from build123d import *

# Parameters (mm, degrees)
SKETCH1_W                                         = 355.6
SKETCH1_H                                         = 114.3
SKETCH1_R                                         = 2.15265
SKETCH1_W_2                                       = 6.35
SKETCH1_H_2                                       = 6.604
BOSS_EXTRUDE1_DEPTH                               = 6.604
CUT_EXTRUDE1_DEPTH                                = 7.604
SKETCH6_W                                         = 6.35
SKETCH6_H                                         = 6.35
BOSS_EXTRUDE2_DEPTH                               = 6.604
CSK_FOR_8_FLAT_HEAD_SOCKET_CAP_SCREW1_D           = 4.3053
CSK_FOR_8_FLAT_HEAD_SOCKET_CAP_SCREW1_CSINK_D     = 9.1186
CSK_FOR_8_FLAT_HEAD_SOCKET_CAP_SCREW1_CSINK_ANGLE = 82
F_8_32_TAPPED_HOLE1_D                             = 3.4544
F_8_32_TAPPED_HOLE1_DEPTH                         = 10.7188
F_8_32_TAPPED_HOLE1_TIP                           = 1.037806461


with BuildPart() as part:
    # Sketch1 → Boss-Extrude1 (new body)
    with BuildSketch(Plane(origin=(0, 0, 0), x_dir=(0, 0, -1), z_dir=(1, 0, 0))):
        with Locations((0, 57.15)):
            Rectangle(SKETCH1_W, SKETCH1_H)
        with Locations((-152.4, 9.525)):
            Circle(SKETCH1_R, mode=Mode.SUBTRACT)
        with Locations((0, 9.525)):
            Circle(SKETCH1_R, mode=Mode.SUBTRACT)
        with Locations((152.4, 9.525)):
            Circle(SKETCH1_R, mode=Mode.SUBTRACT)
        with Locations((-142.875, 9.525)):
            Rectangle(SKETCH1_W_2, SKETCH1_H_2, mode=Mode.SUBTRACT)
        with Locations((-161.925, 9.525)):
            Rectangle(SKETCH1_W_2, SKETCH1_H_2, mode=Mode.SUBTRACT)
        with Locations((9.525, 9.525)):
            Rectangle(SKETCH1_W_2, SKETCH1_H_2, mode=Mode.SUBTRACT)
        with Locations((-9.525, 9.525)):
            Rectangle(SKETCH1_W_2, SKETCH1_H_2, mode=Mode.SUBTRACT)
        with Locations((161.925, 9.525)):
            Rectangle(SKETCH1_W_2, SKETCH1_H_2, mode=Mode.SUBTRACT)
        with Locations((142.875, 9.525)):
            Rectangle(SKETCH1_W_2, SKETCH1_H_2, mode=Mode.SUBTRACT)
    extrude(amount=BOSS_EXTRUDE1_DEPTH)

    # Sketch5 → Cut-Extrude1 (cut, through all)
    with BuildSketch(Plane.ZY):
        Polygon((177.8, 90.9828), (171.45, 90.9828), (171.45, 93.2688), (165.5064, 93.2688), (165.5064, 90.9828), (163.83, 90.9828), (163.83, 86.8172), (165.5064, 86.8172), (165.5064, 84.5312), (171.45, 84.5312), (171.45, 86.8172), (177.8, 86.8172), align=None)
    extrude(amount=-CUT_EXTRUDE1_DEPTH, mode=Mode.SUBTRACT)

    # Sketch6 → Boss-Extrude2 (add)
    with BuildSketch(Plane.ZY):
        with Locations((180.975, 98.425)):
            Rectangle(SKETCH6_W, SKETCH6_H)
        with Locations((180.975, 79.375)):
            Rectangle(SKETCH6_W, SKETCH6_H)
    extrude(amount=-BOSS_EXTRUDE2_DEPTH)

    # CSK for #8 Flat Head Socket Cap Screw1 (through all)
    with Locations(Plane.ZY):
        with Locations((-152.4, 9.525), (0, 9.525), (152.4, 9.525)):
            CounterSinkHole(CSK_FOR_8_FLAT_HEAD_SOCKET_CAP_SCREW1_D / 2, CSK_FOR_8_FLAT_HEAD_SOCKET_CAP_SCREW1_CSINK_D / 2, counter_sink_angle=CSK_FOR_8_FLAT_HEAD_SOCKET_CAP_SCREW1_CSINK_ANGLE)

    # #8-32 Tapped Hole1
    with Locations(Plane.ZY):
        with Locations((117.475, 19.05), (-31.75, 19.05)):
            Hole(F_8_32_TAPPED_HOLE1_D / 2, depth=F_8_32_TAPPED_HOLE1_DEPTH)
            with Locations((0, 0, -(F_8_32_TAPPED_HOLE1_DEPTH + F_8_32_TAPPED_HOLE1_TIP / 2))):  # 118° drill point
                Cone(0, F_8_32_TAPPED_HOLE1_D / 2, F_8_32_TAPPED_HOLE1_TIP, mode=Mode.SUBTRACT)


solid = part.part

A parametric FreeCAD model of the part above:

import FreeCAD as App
import Part
import Sketcher
Q = App.Units.Quantity

doc = App.newDocument("Part")
body = doc.addObject("PartDesign::Body", "Body")

# Sketch on YZ plane
sketch1 = body.newObject("Sketcher::SketchObject", "Sketch")
sketch1.AttachmentSupport = (doc.getObject("YZ_Plane"), [""])
sketch1.MapMode = "FlatFace"
sketch1.addGeometry(Part.LineSegment(App.Vector(114.3, 177.8, 0), App.Vector(0, 177.8, 0)), False)
sketch1.addGeometry(Part.LineSegment(App.Vector(0, 177.8, 0), App.Vector(0, -177.8, 0)), False)
sketch1.addGeometry(Part.LineSegment(App.Vector(0, -177.8, 0), App.Vector(114.3, -177.8, 0)), False)
sketch1.addGeometry(Part.LineSegment(App.Vector(114.3, -177.8, 0), App.Vector(114.3, 177.8, 0)), False)
sketch1.addGeometry(Part.LineSegment(App.Vector(6.2, 158.8, 0), App.Vector(6.2, 165.1, 0)), False)
sketch1.addGeometry(Part.LineSegment(App.Vector(6.2, 165.1, 0), App.Vector(12.8, 165.1, 0)), False)
sketch1.addGeometry(Part.LineSegment(App.Vector(12.8, 165.1, 0), App.Vector(12.8, 158.8, 0)), False)
sketch1.addGeometry(Part.LineSegment(App.Vector(12.8, 158.8, 0), App.Vector(6.2, 158.8, 0)), False)
sketch1.addGeometry(Part.Circle(App.Vector(9.5, 152.4, 0), App.Vector(0, 0, 1), 2.2), False)
sketch1.addGeometry(Part.LineSegment(App.Vector(6.2, 139.7, 0), App.Vector(6.2, 146.1, 0)), False)
sketch1.addGeometry(Part.LineSegment(App.Vector(6.2, 146.1, 0), App.Vector(12.8, 146.1, 0)), False)
sketch1.addGeometry(Part.LineSegment(App.Vector(12.8, 146.1, 0), App.Vector(12.8, 139.7, 0)), False)
sketch1.addGeometry(Part.LineSegment(App.Vector(12.8, 139.7, 0), App.Vector(6.2, 139.7, 0)), False)
sketch1.addGeometry(Part.LineSegment(App.Vector(6.2, 6.3, 0), App.Vector(6.2, 12.7, 0)), False)
sketch1.addGeometry(Part.LineSegment(App.Vector(6.2, 12.7, 0), App.Vector(12.8, 12.7, 0)), False)
sketch1.addGeometry(Part.LineSegment(App.Vector(12.8, 12.7, 0), App.Vector(12.8, 6.3, 0)), False)
sketch1.addGeometry(Part.LineSegment(App.Vector(12.8, 6.3, 0), App.Vector(6.2, 6.3, 0)), False)
sketch1.addGeometry(Part.Circle(App.Vector(9.5, 0, 0), App.Vector(0, 0, 1), 2.2), False)
sketch1.addGeometry(Part.LineSegment(App.Vector(6.2, -12.7, 0), App.Vector(6.2, -6.3, 0)), False)
sketch1.addGeometry(Part.LineSegment(App.Vector(6.2, -6.3, 0), App.Vector(12.8, -6.3, 0)), False)
sketch1.addGeometry(Part.LineSegment(App.Vector(12.8, -6.3, 0), App.Vector(12.8, -12.7, 0)), False)
sketch1.addGeometry(Part.LineSegment(App.Vector(12.8, -12.7, 0), App.Vector(6.2, -12.7, 0)), False)
sketch1.addGeometry(Part.LineSegment(App.Vector(6.2, -146.1, 0), App.Vector(6.2, -139.7, 0)), False)
sketch1.addGeometry(Part.LineSegment(App.Vector(6.2, -139.7, 0), App.Vector(12.8, -139.7, 0)), False)
sketch1.addGeometry(Part.LineSegment(App.Vector(12.8, -139.7, 0), App.Vector(12.8, -146.1, 0)), False)
sketch1.addGeometry(Part.LineSegment(App.Vector(12.8, -146.1, 0), App.Vector(6.2, -146.1, 0)), False)
sketch1.addGeometry(Part.Circle(App.Vector(9.5, -152.4, 0), App.Vector(0, 0, 1), 2.2), False)
sketch1.addGeometry(Part.LineSegment(App.Vector(6.2, -165.1, 0), App.Vector(6.2, -158.8, 0)), False)
sketch1.addGeometry(Part.LineSegment(App.Vector(6.2, -158.8, 0), App.Vector(12.8, -158.8, 0)), False)
sketch1.addGeometry(Part.LineSegment(App.Vector(12.8, -158.8, 0), App.Vector(12.8, -165.1, 0)), False)
sketch1.addGeometry(Part.LineSegment(App.Vector(12.8, -165.1, 0), App.Vector(6.2, -165.1, 0)), False)
sketch1.addConstraint(Sketcher.Constraint("Coincident", 0, 2, 1, 1))
sketch1.addConstraint(Sketcher.Constraint("Coincident", 1, 2, 2, 1))
sketch1.addConstraint(Sketcher.Constraint("Coincident", 2, 2, 3, 1))
sketch1.addConstraint(Sketcher.Constraint("Coincident", 3, 2, 0, 1))
sketch1.addConstraint(Sketcher.Constraint("Coincident", 4, 2, 5, 1))
sketch1.addConstraint(Sketcher.Constraint("Coincident", 5, 2, 6, 1))
sketch1.addConstraint(Sketcher.Constraint("Coincident", 6, 2, 7, 1))
sketch1.addConstraint(Sketcher.Constraint("Coincident", 7, 2, 4, 1))
sketch1.addConstraint(Sketcher.Constraint("Coincident", 9, 2, 10, 1))
sketch1.addConstraint(Sketcher.Constraint("Coincident", 10, 2, 11, 1))
sketch1.addConstraint(Sketcher.Constraint("Coincident", 11, 2, 12, 1))
sketch1.addConstraint(Sketcher.Constraint("Coincident", 12, 2, 9, 1))
sketch1.addConstraint(Sketcher.Constraint("Coincident", 13, 2, 14, 1))
sketch1.addConstraint(Sketcher.Constraint("Coincident", 14, 2, 15, 1))
sketch1.addConstraint(Sketcher.Constraint("Coincident", 15, 2, 16, 1))
sketch1.addConstraint(Sketcher.Constraint("Coincident", 16, 2, 13, 1))
sketch1.addConstraint(Sketcher.Constraint("Coincident", 18, 2, 19, 1))
sketch1.addConstraint(Sketcher.Constraint("Coincident", 19, 2, 20, 1))
sketch1.addConstraint(Sketcher.Constraint("Coincident", 20, 2, 21, 1))
sketch1.addConstraint(Sketcher.Constraint("Coincident", 21, 2, 18, 1))
sketch1.addConstraint(Sketcher.Constraint("Coincident", 22, 2, 23, 1))
sketch1.addConstraint(Sketcher.Constraint("Coincident", 23, 2, 24, 1))
sketch1.addConstraint(Sketcher.Constraint("Coincident", 24, 2, 25, 1))
sketch1.addConstraint(Sketcher.Constraint("Coincident", 25, 2, 22, 1))
sketch1.addConstraint(Sketcher.Constraint("Coincident", 27, 2, 28, 1))
sketch1.addConstraint(Sketcher.Constraint("Coincident", 28, 2, 29, 1))
sketch1.addConstraint(Sketcher.Constraint("Coincident", 29, 2, 30, 1))
sketch1.addConstraint(Sketcher.Constraint("Coincident", 30, 2, 27, 1))
sketch1.addConstraint(Sketcher.Constraint("Horizontal", 0))
sketch1.addConstraint(Sketcher.Constraint("Vertical", 1))
sketch1.addConstraint(Sketcher.Constraint("Horizontal", 2))
sketch1.addConstraint(Sketcher.Constraint("Vertical", 3))
sketch1.addConstraint(Sketcher.Constraint("Vertical", 4))
sketch1.addConstraint(Sketcher.Constraint("Horizontal", 5))
sketch1.addConstraint(Sketcher.Constraint("Vertical", 6))
sketch1.addConstraint(Sketcher.Constraint("Horizontal", 7))
sketch1.addConstraint(Sketcher.Constraint("Vertical", 9))
sketch1.addConstraint(Sketcher.Constraint("Horizontal", 10))
sketch1.addConstraint(Sketcher.Constraint("Vertical", 11))
sketch1.addConstraint(Sketcher.Constraint("Horizontal", 12))
sketch1.addConstraint(Sketcher.Constraint("Vertical", 13))
sketch1.addConstraint(Sketcher.Constraint("Horizontal", 14))
sketch1.addConstraint(Sketcher.Constraint("Vertical", 15))
sketch1.addConstraint(Sketcher.Constraint("Horizontal", 16))
sketch1.addConstraint(Sketcher.Constraint("Vertical", 18))
sketch1.addConstraint(Sketcher.Constraint("Horizontal", 19))
sketch1.addConstraint(Sketcher.Constraint("Vertical", 20))
sketch1.addConstraint(Sketcher.Constraint("Horizontal", 21))
sketch1.addConstraint(Sketcher.Constraint("Vertical", 22))
sketch1.addConstraint(Sketcher.Constraint("Horizontal", 23))
sketch1.addConstraint(Sketcher.Constraint("Vertical", 24))
sketch1.addConstraint(Sketcher.Constraint("Horizontal", 25))
sketch1.addConstraint(Sketcher.Constraint("Vertical", 27))
sketch1.addConstraint(Sketcher.Constraint("Horizontal", 28))
sketch1.addConstraint(Sketcher.Constraint("Vertical", 29))
sketch1.addConstraint(Sketcher.Constraint("Horizontal", 30))
sketch1.addConstraint(Sketcher.Constraint("Equal", 8, 17))
sketch1.addConstraint(Sketcher.Constraint("Equal", 17, 26))
sketch1.addConstraint(Sketcher.Constraint("Symmetric", 0, 2, 1, 2, -1, 1))
sketch1.addConstraint(Sketcher.Constraint("Symmetric", 8, 3, 26, 3, -1))
sketch1.addConstraint(Sketcher.Constraint("Symmetric", 16, 2, 18, 2, -1))
sketch1.addConstraint(Sketcher.Constraint("Symmetric", 14, 2, 20, 2, -1))
sketch1.addConstraint(Sketcher.Constraint("Symmetric", 12, 2, 22, 2, -1))
sketch1.addConstraint(Sketcher.Constraint("Symmetric", 10, 2, 24, 2, -1))
sketch1.addConstraint(Sketcher.Constraint("Symmetric", 7, 2, 27, 2, -1))
sketch1.addConstraint(Sketcher.Constraint("Symmetric", 5, 2, 29, 2, -1))
sketch1.addConstraint(Sketcher.Constraint("PointOnObject", 17, 3, -1))
sketch1.addConstraint(Sketcher.Constraint("Vertical", 8, 3, 17, 3))
sketch1.addConstraint(Sketcher.Constraint("Vertical", 7, 2, 9, 2))
sketch1.addConstraint(Sketcher.Constraint("Vertical", 6, 2, 10, 2))
sketch1.addConstraint(Sketcher.Constraint("Vertical", 12, 2, 13, 2))
sketch1.addConstraint(Sketcher.Constraint("Vertical", 11, 2, 14, 2))
sketch1.addConstraint(Sketcher.Constraint("Equal", 6, 9))
sketch1.addConstraint(Sketcher.Constraint("Equal", 11, 13))
sketch1.addConstraint(Sketcher.Constraint("DistanceY", 1, 2, 1, 1, Q("14 in")))
sketch1.addConstraint(Sketcher.Constraint("DistanceX", 0, 2, 0, 1, Q("4.5 in")))
sketch1.addConstraint(Sketcher.Constraint("DistanceY", -1, 1, 8, 3, Q("6 in")))
sketch1.addConstraint(Sketcher.Constraint("DistanceY", 13, 2, 12, 2, Q("5 in")))
sketch1.addConstraint(Sketcher.Constraint("Diameter", 8, Q("0.1695 in")))
sketch1.addConstraint(Sketcher.Constraint("DistanceX", 5, 1, 5, 2, Q("0.26 in")))
sketch1.addConstraint(Sketcher.Constraint("DistanceY", 4, 1, 4, 2, Q("0.25 in")))
sketch1.addConstraint(Sketcher.Constraint("DistanceY", -1, 1, 4, 2, Q("6.5 in")))
sketch1.addConstraint(Sketcher.Constraint("DistanceY", -1, 1, 11, 2, Q("5.5 in")))
sketch1.addConstraint(Sketcher.Constraint("DistanceX", 4, 2, 8, 3, Q("0.13 in")))
sketch1.addConstraint(Sketcher.Constraint("DistanceX", -1, 1, 8, 3, Q("0.375 in")))
pad1 = body.newObject("PartDesign::Pad", "Pad")
pad1.Profile = sketch1
pad1.Length = Q("0.26 in")

# Sketch on YZ plane
sketch2 = body.newObject("Sketcher::SketchObject", "Sketch001")
sketch2.AttachmentSupport = (doc.getObject("YZ_Plane"), [""])
sketch2.MapMode = "FlatFace"
sketch2.addGeometry(Part.LineSegment(App.Vector(91, 177.8, 0), App.Vector(91, 171.4, 0)), False)
sketch2.addGeometry(Part.LineSegment(App.Vector(91, 171.4, 0), App.Vector(93.3, 171.4, 0)), False)
sketch2.addGeometry(Part.LineSegment(App.Vector(93.3, 171.4, 0), App.Vector(93.3, 165.5, 0)), False)
sketch2.addGeometry(Part.LineSegment(App.Vector(93.3, 165.5, 0), App.Vector(91, 165.5, 0)), False)
sketch2.addGeometry(Part.LineSegment(App.Vector(91, 165.5, 0), App.Vector(91, 163.8, 0)), False)
sketch2.addGeometry(Part.LineSegment(App.Vector(91, 163.8, 0), App.Vector(86.8, 163.8, 0)), False)
sketch2.addGeometry(Part.LineSegment(App.Vector(86.8, 163.8, 0), App.Vector(86.8, 165.5, 0)), False)
sketch2.addGeometry(Part.LineSegment(App.Vector(86.8, 165.5, 0), App.Vector(84.5, 165.5, 0)), False)
sketch2.addGeometry(Part.LineSegment(App.Vector(84.5, 165.5, 0), App.Vector(84.5, 171.4, 0)), False)
sketch2.addGeometry(Part.LineSegment(App.Vector(84.5, 171.4, 0), App.Vector(86.8, 171.4, 0)), False)
sketch2.addGeometry(Part.LineSegment(App.Vector(86.8, 171.4, 0), App.Vector(86.8, 177.8, 0)), False)
sketch2.addGeometry(Part.LineSegment(App.Vector(86.8, 177.8, 0), App.Vector(91, 177.8, 0)), False)
sketch2.addConstraint(Sketcher.Constraint("Coincident", 0, 2, 1, 1))
sketch2.addConstraint(Sketcher.Constraint("Coincident", 1, 2, 2, 1))
sketch2.addConstraint(Sketcher.Constraint("Coincident", 2, 2, 3, 1))
sketch2.addConstraint(Sketcher.Constraint("Coincident", 3, 2, 4, 1))
sketch2.addConstraint(Sketcher.Constraint("Coincident", 4, 2, 5, 1))
sketch2.addConstraint(Sketcher.Constraint("Coincident", 5, 2, 6, 1))
sketch2.addConstraint(Sketcher.Constraint("Coincident", 6, 2, 7, 1))
sketch2.addConstraint(Sketcher.Constraint("Coincident", 7, 2, 8, 1))
sketch2.addConstraint(Sketcher.Constraint("Coincident", 8, 2, 9, 1))
sketch2.addConstraint(Sketcher.Constraint("Coincident", 9, 2, 10, 1))
sketch2.addConstraint(Sketcher.Constraint("Coincident", 10, 2, 11, 1))
sketch2.addConstraint(Sketcher.Constraint("Coincident", 11, 2, 0, 1))
sketch2.addConstraint(Sketcher.Constraint("Vertical", 0))
sketch2.addConstraint(Sketcher.Constraint("Horizontal", 1))
sketch2.addConstraint(Sketcher.Constraint("Vertical", 2))
sketch2.addConstraint(Sketcher.Constraint("Horizontal", 3))
sketch2.addConstraint(Sketcher.Constraint("Vertical", 4))
sketch2.addConstraint(Sketcher.Constraint("Horizontal", 5))
sketch2.addConstraint(Sketcher.Constraint("Vertical", 6))
sketch2.addConstraint(Sketcher.Constraint("Horizontal", 7))
sketch2.addConstraint(Sketcher.Constraint("Vertical", 8))
sketch2.addConstraint(Sketcher.Constraint("Horizontal", 9))
sketch2.addConstraint(Sketcher.Constraint("Vertical", 10))
sketch2.addConstraint(Sketcher.Constraint("Horizontal", 11))
sketch2.addConstraint(Sketcher.Constraint("Horizontal", 3, 2, 6, 2))
sketch2.addConstraint(Sketcher.Constraint("Horizontal", 1, 2, 8, 2))
sketch2.addConstraint(Sketcher.Constraint("Vertical", 0, 2, 3, 2))
sketch2.addConstraint(Sketcher.Constraint("Vertical", 6, 2, 9, 2))
sketch2.addConstraint(Sketcher.Constraint("Equal", 3, 7))
sketch2.addConstraint(Sketcher.Constraint("DistanceY", -1, 1, 10, 2, Q("7 in")))
sketch2.addConstraint(Sketcher.Constraint("DistanceX", 1, 1, 1, 2, Q("0.09 in")))
sketch2.addConstraint(Sketcher.Constraint("DistanceY", 0, 2, 0, 1, Q("0.25 in")))
sketch2.addConstraint(Sketcher.Constraint("DistanceY", 4, 2, 0, 2, Q("0.3 in")))
sketch2.addConstraint(Sketcher.Constraint("DistanceX", 5, 2, 5, 1, Q("0.164 in")))
sketch2.addConstraint(Sketcher.Constraint("DistanceY", 2, 2, 2, 1, Q("0.234 in")))
sketch2.addConstraint(Sketcher.Constraint("DistanceX", -1, 1, 0, 2, Q("3.582 in")))
pocket1 = body.newObject("PartDesign::Pocket", "Pocket")
pocket1.Profile = sketch2
pocket1.Type = "ThroughAll"
pocket1.Reversed = True

# Sketch on YZ plane
sketch3 = body.newObject("Sketcher::SketchObject", "Sketch002")
sketch3.AttachmentSupport = (doc.getObject("YZ_Plane"), [""])
sketch3.MapMode = "FlatFace"
sketch3.addGeometry(Part.LineSegment(App.Vector(102, 178, 0), App.Vector(95, 178, 0)), False)
sketch3.addGeometry(Part.LineSegment(App.Vector(95, 178, 0), App.Vector(95, 184, 0)), False)
sketch3.addGeometry(Part.LineSegment(App.Vector(95, 184, 0), App.Vector(102, 184, 0)), False)
sketch3.addGeometry(Part.LineSegment(App.Vector(102, 184, 0), App.Vector(102, 178, 0)), False)
sketch3.addGeometry(Part.LineSegment(App.Vector(83, 178, 0), App.Vector(76, 178, 0)), False)
sketch3.addGeometry(Part.LineSegment(App.Vector(76, 178, 0), App.Vector(76, 184, 0)), False)
sketch3.addGeometry(Part.LineSegment(App.Vector(76, 184, 0), App.Vector(83, 184, 0)), False)
sketch3.addGeometry(Part.LineSegment(App.Vector(83, 184, 0), App.Vector(83, 178, 0)), False)
sketch3.addConstraint(Sketcher.Constraint("Coincident", 0, 2, 1, 1))
sketch3.addConstraint(Sketcher.Constraint("Coincident", 1, 2, 2, 1))
sketch3.addConstraint(Sketcher.Constraint("Coincident", 2, 2, 3, 1))
sketch3.addConstraint(Sketcher.Constraint("Coincident", 3, 2, 0, 1))
sketch3.addConstraint(Sketcher.Constraint("Coincident", 4, 2, 5, 1))
sketch3.addConstraint(Sketcher.Constraint("Coincident", 5, 2, 6, 1))
sketch3.addConstraint(Sketcher.Constraint("Coincident", 6, 2, 7, 1))
sketch3.addConstraint(Sketcher.Constraint("Coincident", 7, 2, 4, 1))
sketch3.addConstraint(Sketcher.Constraint("Horizontal", 0))
sketch3.addConstraint(Sketcher.Constraint("Vertical", 1))
sketch3.addConstraint(Sketcher.Constraint("Horizontal", 2))
sketch3.addConstraint(Sketcher.Constraint("Vertical", 3))
sketch3.addConstraint(Sketcher.Constraint("Horizontal", 4))
sketch3.addConstraint(Sketcher.Constraint("Vertical", 5))
sketch3.addConstraint(Sketcher.Constraint("Horizontal", 6))
sketch3.addConstraint(Sketcher.Constraint("Vertical", 7))
sketch3.addConstraint(Sketcher.Constraint("Horizontal", 3, 2, 4, 2))
sketch3.addConstraint(Sketcher.Constraint("Horizontal", 2, 2, 5, 2))
sketch3.addConstraint(Sketcher.Constraint("Equal", 2, 4))
sketch3.addConstraint(Sketcher.Constraint("Equal", 6, 1))
sketch3.addConstraint(Sketcher.Constraint("DistanceY", -1, 1, 0, 2, Q("7 in")))
sketch3.addConstraint(Sketcher.Constraint("DistanceX", -1, 1, 2, 2, Q("4 in")))
sketch3.addConstraint(Sketcher.Constraint("DistanceX", -1, 1, 4, 2, Q("3 in")))
sketch3.addConstraint(Sketcher.Constraint("DistanceX", 0, 2, 0, 1, Q("0.25 in")))
pad2 = body.newObject("PartDesign::Pad", "Pad001")
pad2.Profile = sketch3
pad2.Length = Q("0.26 in")

# Sketch on YZ plane
sketch4 = body.newObject("Sketcher::SketchObject", "Sketch003")
sketch4.AttachmentSupport = (doc.getObject("YZ_Plane"), [""])
sketch4.MapMode = "FlatFace"
sketch4.addGeometry(Part.Circle(App.Vector(9.5, -152.4, 0), App.Vector(0, 0, 1), 2.2), False)
sketch4.addGeometry(Part.Circle(App.Vector(9.5, 0, 0), App.Vector(0, 0, 1), 2.2), False)
sketch4.addGeometry(Part.Circle(App.Vector(9.5, 152.4, 0), App.Vector(0, 0, 1), 2.2), False)
sketch4.addConstraint(Sketcher.Constraint("Equal", 0, 1))
sketch4.addConstraint(Sketcher.Constraint("Equal", 1, 2))
sketch4.addConstraint(Sketcher.Constraint("Symmetric", 0, 3, 2, 3, -1))
sketch4.addConstraint(Sketcher.Constraint("PointOnObject", 1, 3, -1))
sketch4.addConstraint(Sketcher.Constraint("Vertical", 0, 3, 1, 3))
sketch4.addConstraint(Sketcher.Constraint("DistanceY", 0, 3, -1, 1, Q("6 in")))
sketch4.addConstraint(Sketcher.Constraint("Diameter", 0, Q("0.1695 in")))
sketch4.addConstraint(Sketcher.Constraint("DistanceX", -1, 1, 0, 3, Q("0.375 in")))
doc.recompute()
hole = body.newObject("PartDesign::Hole", "Hole")
hole.Profile = sketch4
hole.ThreadType = "None"
hole.Diameter = Q("0.1695 in")
hole.DepthType = "ThroughAll"
hole.HoleCutType = "Countersink"
hole.HoleCutDiameter = Q("0.359 in")
hole.HoleCutCountersinkAngle = 82
hole.Reversed = True

# Sketch on YZ plane
sketch5 = body.newObject("Sketcher::SketchObject", "Sketch004")
sketch5.AttachmentSupport = (doc.getObject("YZ_Plane"), [""])
sketch5.MapMode = "FlatFace"
sketch5.addGeometry(Part.Circle(App.Vector(19.1, 117.5, 0), App.Vector(0, 0, 1), 1.7), False)
sketch5.addGeometry(Part.Circle(App.Vector(19.1, -31.8, 0), App.Vector(0, 0, 1), 1.7), False)
sketch5.addConstraint(Sketcher.Constraint("Equal", 0, 1))
sketch5.addConstraint(Sketcher.Constraint("Vertical", 0, 3, 1, 3))
sketch5.addConstraint(Sketcher.Constraint("Diameter", 0, Q("0.136 in")))
sketch5.addConstraint(Sketcher.Constraint("DistanceX", -1, 1, 0, 3, Q("0.75 in")))
sketch5.addConstraint(Sketcher.Constraint("DistanceY", 1, 3, -1, 1, Q("1.25 in")))
sketch5.addConstraint(Sketcher.Constraint("DistanceY", -1, 1, 0, 3, Q("4.625 in")))
doc.recompute()
hole2 = body.newObject("PartDesign::Hole", "Hole001")
hole2.Profile = sketch5
hole2.ThreadType = "None"
hole2.Diameter = Q("0.136 in")
hole2.DepthType = "Dimension"
hole2.Depth = Q("0.422 in")
hole2.DrillPoint = "Angled"
hole2.DrillPointAngle = 118
hole2.Reversed = True

doc.recompute()
